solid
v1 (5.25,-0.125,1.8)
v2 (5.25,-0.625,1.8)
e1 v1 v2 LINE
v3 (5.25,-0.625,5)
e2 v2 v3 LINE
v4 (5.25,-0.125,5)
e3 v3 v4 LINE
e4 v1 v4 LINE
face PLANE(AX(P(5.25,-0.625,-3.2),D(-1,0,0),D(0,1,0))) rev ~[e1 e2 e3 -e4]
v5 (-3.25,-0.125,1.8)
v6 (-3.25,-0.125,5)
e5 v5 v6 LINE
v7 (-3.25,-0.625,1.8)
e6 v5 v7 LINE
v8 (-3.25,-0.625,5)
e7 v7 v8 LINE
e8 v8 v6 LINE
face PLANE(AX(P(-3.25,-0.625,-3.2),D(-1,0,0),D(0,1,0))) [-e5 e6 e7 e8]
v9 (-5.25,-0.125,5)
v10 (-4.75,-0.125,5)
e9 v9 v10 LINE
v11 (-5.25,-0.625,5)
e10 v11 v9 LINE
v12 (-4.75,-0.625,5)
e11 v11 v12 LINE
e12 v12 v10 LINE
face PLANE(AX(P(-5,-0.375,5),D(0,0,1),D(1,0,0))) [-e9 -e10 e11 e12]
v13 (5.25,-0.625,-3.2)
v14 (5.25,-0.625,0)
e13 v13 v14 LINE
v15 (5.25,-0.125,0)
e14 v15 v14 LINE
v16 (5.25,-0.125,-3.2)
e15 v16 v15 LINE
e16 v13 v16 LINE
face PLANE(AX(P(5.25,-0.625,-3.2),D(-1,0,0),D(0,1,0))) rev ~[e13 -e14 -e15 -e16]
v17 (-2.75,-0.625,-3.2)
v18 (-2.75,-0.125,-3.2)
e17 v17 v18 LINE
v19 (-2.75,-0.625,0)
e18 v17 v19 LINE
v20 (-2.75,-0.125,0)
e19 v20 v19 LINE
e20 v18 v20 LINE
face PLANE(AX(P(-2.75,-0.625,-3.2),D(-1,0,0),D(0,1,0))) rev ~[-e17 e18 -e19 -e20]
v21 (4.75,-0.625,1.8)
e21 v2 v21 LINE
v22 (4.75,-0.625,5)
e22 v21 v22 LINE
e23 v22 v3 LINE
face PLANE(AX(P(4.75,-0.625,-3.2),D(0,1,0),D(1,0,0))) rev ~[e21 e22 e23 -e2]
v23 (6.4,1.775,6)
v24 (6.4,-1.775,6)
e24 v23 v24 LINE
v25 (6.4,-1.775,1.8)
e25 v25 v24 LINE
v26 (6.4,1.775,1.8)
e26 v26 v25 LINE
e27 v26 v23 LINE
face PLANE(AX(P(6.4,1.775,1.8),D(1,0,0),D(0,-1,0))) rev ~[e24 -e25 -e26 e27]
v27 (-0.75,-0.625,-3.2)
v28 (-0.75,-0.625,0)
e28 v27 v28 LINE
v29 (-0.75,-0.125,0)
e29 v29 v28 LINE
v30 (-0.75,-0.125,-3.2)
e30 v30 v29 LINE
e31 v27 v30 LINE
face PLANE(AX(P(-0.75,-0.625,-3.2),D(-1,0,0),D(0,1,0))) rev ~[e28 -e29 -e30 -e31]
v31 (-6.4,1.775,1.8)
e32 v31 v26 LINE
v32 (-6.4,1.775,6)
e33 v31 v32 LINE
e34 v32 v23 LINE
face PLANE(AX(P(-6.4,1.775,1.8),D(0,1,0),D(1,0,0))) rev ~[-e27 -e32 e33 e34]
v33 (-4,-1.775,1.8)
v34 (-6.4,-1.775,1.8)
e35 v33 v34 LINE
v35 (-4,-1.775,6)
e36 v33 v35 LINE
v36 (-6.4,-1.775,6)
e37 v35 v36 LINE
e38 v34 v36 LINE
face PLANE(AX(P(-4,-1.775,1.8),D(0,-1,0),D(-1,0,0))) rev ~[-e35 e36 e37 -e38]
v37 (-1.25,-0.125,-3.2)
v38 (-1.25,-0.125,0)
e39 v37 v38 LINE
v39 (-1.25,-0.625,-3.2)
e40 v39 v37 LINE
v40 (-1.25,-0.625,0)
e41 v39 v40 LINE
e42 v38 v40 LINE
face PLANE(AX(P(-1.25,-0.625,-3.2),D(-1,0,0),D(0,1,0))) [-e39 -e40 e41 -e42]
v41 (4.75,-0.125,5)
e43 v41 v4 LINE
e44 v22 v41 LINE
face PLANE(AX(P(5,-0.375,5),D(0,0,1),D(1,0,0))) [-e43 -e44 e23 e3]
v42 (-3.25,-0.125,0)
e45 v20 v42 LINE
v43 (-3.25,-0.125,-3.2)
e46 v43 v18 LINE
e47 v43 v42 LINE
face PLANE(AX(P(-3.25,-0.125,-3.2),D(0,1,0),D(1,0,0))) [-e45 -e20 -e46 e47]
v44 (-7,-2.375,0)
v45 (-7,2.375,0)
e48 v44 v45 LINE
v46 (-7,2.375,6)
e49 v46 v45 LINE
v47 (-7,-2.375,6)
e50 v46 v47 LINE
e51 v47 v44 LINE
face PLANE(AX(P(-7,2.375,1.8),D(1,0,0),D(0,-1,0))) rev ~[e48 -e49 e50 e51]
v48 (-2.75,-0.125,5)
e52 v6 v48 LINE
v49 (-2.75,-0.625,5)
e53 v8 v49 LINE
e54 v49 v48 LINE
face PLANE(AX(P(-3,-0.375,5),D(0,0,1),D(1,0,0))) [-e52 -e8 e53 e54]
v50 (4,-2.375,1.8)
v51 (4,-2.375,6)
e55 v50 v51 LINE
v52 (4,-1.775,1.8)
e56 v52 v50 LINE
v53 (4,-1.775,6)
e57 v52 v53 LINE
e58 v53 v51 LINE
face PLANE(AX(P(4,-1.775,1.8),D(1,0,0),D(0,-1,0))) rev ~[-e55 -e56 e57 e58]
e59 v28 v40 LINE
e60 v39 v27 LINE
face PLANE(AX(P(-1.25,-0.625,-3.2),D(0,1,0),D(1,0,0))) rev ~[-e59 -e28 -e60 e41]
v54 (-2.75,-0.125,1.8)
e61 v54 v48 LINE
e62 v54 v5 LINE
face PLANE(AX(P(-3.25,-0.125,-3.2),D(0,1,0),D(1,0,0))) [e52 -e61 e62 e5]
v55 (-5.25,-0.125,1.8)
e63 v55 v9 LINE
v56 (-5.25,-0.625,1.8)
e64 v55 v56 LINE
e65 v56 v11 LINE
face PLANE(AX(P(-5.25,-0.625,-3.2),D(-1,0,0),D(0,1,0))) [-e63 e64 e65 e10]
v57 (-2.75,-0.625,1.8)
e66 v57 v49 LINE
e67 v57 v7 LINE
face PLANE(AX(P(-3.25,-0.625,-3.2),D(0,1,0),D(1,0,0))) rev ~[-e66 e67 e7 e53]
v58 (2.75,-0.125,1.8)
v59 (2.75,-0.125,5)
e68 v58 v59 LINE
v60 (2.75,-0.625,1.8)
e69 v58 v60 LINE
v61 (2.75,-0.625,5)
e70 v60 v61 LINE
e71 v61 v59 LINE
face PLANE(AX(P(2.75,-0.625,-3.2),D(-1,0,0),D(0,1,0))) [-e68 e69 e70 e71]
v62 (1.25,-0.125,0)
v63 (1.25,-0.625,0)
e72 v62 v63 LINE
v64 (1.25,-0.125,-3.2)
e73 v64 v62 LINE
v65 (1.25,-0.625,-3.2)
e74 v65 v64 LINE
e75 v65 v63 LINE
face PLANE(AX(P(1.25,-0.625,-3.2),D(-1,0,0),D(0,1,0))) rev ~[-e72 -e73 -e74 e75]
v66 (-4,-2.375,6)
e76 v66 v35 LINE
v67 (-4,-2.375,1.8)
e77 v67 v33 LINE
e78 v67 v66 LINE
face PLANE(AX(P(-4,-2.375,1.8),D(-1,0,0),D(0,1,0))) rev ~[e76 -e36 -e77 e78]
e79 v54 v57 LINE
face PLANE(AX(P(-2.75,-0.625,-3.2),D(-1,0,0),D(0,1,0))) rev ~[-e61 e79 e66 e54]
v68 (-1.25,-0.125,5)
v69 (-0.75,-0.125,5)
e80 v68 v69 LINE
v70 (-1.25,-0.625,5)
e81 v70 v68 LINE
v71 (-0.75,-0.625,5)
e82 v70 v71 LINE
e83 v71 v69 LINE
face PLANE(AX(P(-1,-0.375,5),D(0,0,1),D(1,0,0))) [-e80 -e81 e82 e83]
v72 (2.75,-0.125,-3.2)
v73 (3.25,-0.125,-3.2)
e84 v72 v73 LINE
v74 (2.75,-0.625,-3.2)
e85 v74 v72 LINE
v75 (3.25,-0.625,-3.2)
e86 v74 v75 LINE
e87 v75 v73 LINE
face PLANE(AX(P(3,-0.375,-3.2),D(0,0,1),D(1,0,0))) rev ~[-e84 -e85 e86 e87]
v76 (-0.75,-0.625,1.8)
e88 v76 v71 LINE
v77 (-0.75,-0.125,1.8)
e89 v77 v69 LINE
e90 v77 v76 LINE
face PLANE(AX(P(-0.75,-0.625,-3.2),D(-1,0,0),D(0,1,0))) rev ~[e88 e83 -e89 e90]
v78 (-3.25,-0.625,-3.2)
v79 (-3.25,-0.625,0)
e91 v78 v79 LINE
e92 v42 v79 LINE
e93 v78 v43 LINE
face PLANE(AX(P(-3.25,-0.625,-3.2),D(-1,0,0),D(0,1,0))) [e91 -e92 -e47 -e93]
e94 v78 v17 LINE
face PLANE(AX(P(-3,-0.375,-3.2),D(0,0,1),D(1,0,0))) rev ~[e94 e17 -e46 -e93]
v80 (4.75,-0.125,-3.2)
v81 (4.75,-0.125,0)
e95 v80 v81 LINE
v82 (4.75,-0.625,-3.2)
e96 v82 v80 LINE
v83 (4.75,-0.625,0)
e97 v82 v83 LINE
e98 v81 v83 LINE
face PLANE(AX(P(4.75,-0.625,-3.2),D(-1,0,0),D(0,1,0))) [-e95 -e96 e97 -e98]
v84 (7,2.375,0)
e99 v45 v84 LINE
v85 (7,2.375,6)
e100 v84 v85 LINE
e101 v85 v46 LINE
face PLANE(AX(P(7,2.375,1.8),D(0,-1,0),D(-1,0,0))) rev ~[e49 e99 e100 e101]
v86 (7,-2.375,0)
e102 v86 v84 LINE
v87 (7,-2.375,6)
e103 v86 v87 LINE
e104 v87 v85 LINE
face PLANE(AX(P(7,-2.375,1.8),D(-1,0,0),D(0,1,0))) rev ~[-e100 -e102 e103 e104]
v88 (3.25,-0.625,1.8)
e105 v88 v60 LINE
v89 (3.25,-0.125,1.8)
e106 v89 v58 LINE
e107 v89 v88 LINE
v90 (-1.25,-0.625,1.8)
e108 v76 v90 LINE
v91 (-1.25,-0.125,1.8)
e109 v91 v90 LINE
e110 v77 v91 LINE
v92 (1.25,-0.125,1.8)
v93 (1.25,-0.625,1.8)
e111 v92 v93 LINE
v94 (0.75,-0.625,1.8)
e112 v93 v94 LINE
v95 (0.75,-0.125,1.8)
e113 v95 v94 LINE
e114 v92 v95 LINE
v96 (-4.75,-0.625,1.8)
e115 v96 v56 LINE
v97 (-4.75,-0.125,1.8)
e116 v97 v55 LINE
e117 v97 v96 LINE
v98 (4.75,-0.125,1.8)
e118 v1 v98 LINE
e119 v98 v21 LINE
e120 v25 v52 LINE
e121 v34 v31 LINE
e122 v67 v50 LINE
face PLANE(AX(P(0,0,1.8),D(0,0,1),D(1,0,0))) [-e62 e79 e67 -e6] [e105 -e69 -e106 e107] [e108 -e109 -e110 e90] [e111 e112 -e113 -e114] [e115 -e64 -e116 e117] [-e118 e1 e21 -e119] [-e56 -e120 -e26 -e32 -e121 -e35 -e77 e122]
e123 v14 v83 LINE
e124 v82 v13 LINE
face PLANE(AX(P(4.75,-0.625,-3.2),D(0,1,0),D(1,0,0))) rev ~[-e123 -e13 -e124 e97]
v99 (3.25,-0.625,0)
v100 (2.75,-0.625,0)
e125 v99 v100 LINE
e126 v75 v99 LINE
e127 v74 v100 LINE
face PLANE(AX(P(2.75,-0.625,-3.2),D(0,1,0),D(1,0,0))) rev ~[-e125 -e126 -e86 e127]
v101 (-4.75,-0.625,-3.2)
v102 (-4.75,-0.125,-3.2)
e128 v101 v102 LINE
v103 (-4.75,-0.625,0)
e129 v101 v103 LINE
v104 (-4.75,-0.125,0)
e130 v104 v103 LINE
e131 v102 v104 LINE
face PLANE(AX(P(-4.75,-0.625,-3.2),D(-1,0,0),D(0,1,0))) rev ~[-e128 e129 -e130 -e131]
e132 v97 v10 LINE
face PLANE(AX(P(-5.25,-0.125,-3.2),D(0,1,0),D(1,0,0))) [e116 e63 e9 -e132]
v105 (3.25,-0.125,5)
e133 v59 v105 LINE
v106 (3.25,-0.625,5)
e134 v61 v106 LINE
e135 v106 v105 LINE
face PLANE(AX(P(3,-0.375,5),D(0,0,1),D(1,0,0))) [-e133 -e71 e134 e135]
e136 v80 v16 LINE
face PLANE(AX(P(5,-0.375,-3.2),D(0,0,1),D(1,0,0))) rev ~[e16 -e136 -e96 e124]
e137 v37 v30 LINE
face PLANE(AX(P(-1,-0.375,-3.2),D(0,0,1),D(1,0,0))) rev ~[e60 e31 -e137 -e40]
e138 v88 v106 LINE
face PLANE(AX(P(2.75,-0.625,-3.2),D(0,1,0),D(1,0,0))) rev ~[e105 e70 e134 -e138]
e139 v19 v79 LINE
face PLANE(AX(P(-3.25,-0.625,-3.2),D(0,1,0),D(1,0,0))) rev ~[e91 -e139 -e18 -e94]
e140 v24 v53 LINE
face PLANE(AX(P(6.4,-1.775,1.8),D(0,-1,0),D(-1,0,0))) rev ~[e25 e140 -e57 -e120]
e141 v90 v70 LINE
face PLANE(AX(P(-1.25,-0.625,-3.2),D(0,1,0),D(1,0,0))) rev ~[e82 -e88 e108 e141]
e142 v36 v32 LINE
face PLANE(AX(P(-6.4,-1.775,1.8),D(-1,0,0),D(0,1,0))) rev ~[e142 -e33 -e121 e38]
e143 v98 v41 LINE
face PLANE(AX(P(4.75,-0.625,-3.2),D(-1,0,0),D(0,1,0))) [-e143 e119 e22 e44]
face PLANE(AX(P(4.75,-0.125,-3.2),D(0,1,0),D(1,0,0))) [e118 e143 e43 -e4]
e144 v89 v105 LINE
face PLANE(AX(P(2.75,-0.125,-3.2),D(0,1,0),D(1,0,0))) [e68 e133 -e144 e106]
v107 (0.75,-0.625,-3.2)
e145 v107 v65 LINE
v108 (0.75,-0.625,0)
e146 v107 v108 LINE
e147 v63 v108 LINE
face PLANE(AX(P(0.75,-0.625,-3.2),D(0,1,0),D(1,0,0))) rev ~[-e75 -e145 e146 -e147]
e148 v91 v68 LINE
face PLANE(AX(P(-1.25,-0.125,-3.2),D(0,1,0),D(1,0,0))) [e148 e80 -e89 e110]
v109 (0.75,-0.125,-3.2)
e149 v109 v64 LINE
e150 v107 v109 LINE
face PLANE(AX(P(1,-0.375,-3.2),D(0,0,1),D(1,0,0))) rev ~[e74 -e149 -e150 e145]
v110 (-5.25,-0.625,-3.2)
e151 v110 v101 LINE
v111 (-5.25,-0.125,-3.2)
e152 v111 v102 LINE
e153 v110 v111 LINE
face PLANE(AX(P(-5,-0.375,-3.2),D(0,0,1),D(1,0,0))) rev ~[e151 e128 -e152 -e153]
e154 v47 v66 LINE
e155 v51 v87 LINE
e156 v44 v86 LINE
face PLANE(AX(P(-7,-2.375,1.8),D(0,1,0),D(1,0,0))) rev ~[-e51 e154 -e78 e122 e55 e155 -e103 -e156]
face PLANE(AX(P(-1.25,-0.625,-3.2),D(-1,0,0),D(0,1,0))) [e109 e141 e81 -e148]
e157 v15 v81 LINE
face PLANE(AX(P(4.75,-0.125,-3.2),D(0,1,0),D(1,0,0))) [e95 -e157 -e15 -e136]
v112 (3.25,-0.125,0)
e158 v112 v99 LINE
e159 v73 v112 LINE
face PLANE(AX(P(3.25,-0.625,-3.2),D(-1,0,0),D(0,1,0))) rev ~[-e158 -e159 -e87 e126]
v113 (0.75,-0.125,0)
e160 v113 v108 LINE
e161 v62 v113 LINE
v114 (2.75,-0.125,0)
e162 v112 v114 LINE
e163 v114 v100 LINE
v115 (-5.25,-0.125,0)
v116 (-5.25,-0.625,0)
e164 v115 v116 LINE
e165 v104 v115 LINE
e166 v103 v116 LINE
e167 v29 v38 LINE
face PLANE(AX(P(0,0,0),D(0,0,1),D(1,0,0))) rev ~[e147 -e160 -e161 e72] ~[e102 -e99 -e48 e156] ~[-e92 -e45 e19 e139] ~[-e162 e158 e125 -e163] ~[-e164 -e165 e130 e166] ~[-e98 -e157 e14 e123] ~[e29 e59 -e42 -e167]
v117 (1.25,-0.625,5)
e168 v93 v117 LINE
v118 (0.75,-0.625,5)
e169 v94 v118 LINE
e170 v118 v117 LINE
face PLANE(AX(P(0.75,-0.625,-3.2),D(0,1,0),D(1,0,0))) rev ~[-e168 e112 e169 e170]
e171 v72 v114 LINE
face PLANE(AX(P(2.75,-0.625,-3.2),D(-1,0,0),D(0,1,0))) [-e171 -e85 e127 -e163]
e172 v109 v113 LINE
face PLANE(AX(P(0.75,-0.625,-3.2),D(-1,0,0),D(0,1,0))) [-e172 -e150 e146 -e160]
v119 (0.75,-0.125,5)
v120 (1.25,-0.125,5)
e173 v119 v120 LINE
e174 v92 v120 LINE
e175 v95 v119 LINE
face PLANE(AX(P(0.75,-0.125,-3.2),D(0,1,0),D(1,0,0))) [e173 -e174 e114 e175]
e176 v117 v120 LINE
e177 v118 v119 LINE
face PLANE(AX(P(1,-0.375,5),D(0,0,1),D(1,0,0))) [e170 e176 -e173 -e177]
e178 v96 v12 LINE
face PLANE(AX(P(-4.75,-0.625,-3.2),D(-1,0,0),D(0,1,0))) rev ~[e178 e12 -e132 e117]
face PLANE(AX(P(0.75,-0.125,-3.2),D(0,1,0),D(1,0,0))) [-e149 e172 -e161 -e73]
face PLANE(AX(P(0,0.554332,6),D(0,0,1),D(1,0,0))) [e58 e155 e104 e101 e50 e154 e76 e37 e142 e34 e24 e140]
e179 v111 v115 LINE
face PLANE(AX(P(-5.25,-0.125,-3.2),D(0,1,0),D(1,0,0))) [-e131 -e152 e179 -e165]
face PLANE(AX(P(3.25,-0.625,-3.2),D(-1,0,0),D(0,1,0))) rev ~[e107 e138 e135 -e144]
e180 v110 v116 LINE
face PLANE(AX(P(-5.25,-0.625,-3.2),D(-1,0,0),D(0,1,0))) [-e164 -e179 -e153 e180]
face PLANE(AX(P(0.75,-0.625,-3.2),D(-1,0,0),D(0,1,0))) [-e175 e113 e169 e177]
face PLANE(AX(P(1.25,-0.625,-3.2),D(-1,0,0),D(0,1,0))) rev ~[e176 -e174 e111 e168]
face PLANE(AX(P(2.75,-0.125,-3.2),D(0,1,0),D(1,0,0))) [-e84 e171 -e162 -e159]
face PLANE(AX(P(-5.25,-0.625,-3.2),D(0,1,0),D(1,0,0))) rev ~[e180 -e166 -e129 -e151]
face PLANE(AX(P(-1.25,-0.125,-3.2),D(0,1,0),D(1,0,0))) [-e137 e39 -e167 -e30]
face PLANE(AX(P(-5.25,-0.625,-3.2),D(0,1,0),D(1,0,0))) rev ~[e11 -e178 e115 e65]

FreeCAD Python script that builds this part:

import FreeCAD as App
import Part
import Sketcher


def add_polygon(sketch, points):
    """Adds a closed chain of lines whose ends are joined by coincident constraints."""
    first, n = sketch.GeometryCount, len(points)
    for a, b in zip(points, points[1:] + points[:1]):
        sketch.addGeometry(Part.LineSegment(App.Vector(*a, 0), App.Vector(*b, 0)), False)
    for i in range(n):
        sketch.addConstraint(Sketcher.Constraint("Coincident", first + i, 2, first + (i + 1) % n, 1))

doc = App.newDocument("Part")
body = doc.addObject("PartDesign::Body", "Body")

sketch1 = body.newObject("Sketcher::SketchObject", "Sketch")
sketch1.AttachmentSupport = (doc.getObject("XY_Plane"), [""])
sketch1.MapMode = "FlatFace"
add_polygon(sketch1, [(-7, 2.4), (-7, -2.4), (7, -2.4), (7, 2.4)])
sketch1.addConstraint([
    Sketcher.Constraint("Vertical", 0),
    Sketcher.Constraint("Horizontal", 1),
    Sketcher.Constraint("Vertical", 2),
    Sketcher.Constraint("Horizontal", 3),
    Sketcher.Constraint("Symmetric", 0, 2, 2, 2, -1, 1),
    Sketcher.Constraint("DistanceX", 1, 1, 1, 2, 14.0),
    Sketcher.Constraint("DistanceY", 0, 2, 0, 1, 4.75),
])
pad1 = body.newObject("PartDesign::Pad", "Pad")
pad1.Profile = sketch1
pad1.Length = 1.8

sketch2 = body.newObject("Sketcher::SketchObject", "Sketch001")
sketch2.AttachmentSupport = (doc.getObject("XY_Plane"), [""])
sketch2.MapMode = "FlatFace"
sketch2.AttachmentOffset = App.Placement(App.Vector(0, 0, 1.8), App.Rotation())
add_polygon(sketch2, [(-4, -2.4), (-4, -1.8), (-6.4, -1.8), (-6.4, 1.8), (6.4, 1.8), (6.4, -1.8), (4, -1.8), (4, -2.4), (7, -2.4), (7, 2.4), (-7, 2.4), (-7, -2.4)])
sketch2.addConstraint([
    Sketcher.Constraint("Vertical", 0),
    Sketcher.Constraint("Horizontal", 1),
    Sketcher.Constraint("Vertical", 2),
    Sketcher.Constraint("Horizontal", 3),
    Sketcher.Constraint("Vertical", 4),
    Sketcher.Constraint("Horizontal", 5),
    Sketcher.Constraint("Vertical", 6),
    Sketcher.Constraint("Horizontal", 7),
    Sketcher.Constraint("Vertical", 8),
    Sketcher.Constraint("Horizontal", 9),
    Sketcher.Constraint("Vertical", 10),
    Sketcher.Constraint("Horizontal", 11),
    Sketcher.Constraint("Symmetric", 1, 2, 3, 2, -1, 1),
    Sketcher.Constraint("Symmetric", 7, 2, 9, 2, -1, 1),
    Sketcher.Constraint("Symmetric", 0, 2, 5, 2, -2),
    Sketcher.Constraint("Horizontal", 7, 2, 10, 2),
    Sketcher.Constraint("DistanceX", 7, 1, 7, 2, 3.0),
    Sketcher.Constraint("DistanceX", 9, 2, 9, 1, 14.0),
    Sketcher.Constraint("DistanceX", 1, 2, 1, 1, 2.4),
    Sketcher.Constraint("DistanceY", 0, 1, 0, 2, 0.6),
    Sketcher.Constraint("DistanceY", 2, 1, 2, 2, 3.55),
])
pad2 = body.newObject("PartDesign::Pad", "Pad001")
pad2.Profile = sketch2
pad2.Length = 4.2

sketch3 = body.newObject("Sketcher::SketchObject", "Sketch002")
sketch3.AttachmentSupport = (doc.getObject("XY_Plane"), [""])
sketch3.MapMode = "FlatFace"
sketch3.AttachmentOffset = App.Placement(App.Vector(0, 0, -3.2), App.Rotation())
add_polygon(sketch3, [(-5.2, -0.1), (-5.2, -0.6), (-4.8, -0.6), (-4.8, -0.1)])
sketch3.addConstraint([
    Sketcher.Constraint("Vertical", 0),
    Sketcher.Constraint("Horizontal", 1),
    Sketcher.Constraint("Vertical", 2),
    Sketcher.Constraint("Horizontal", 3),
    Sketcher.Constraint("Equal", 3, 0),
    Sketcher.Constraint("DistanceX", 1, 1, 1, 2, 0.5),
    Sketcher.Constraint("DistanceX", 0, 2, -1, 1, 5.25),
    Sketcher.Constraint("DistanceY", 0, 2, -1, 1, 0.625),
])
pad3 = body.newObject("PartDesign::Pad", "Pad002")
pad3.Profile = sketch3
pad3.Length = 8.2
doc.recompute()

linearpattern = body.newObject("PartDesign::LinearPattern", "LinearPattern")
linearpattern.Originals = [pad3]
linearpattern.Direction = (doc.getObject("X_Axis"), [""])
linearpattern.Mode = "offset"
linearpattern.Offset = 2
linearpattern.Occurrences = 6
body.Tip = linearpattern

doc.recompute()
